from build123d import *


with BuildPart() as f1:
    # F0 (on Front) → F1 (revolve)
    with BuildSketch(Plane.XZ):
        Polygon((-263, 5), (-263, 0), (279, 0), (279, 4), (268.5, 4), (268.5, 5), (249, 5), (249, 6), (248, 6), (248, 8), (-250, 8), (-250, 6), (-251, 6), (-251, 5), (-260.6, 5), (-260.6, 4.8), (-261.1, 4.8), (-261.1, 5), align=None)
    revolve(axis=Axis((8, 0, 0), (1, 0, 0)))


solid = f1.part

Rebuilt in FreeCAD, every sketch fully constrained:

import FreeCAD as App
import Part
import Sketcher
from FreeCAD import Vector


def add_polygon(sketch, points):
    """Adds a closed chain of lines whose ends are joined by coincident constraints."""
    first, n = sketch.GeometryCount, len(points)
    for a, b in zip(points, points[1:] + points[:1]):
        sketch.addGeometry(Part.LineSegment(App.Vector(*a, 0), App.Vector(*b, 0)), False)
    for i in range(n):
        sketch.addConstraint(Sketcher.Constraint("Coincident", first + i, 2, first + (i + 1) % n, 1))

doc = App.newDocument("Part")
params = doc.addObject("Spreadsheet::Sheet", "Params")
for row, (alias, value) in enumerate([
    ("sketch1_width", "542 mm"),
    ("sketch1_width2", "1 mm"),
    ("sketch1_width3", "498 mm"),
    ("sketch1_height", "5 mm"),
    ("sketch1_height2", "2 mm"),
    ("revolution_angle", "360 deg"),
], start=1):
    params.set(f"A{row}", alias)
    params.set(f"B{row}", "=" + value)
    params.setAlias(f"B{row}", alias)

body = doc.addObject("PartDesign::Body", "Body")

# Sketch on XZ plane
sketch1 = body.newObject("Sketcher::SketchObject", "Sketch")
sketch1.AttachmentSupport = (doc.getObject("XZ_Plane"), [""])
sketch1.MapMode = "FlatFace"
add_polygon(sketch1, [(-263, 5), (-263, 0), (279, 0), (279, 4), (268.5, 4), (268.5, 5), (249, 5), (249, 6), (248, 6), (248, 8), (-250, 8), (-250, 6), (-251, 6), (-251, 5), (-260.6, 5), (-260.6, 4.8), (-261.1, 4.8), (-261.1, 5)])  # lines 0-17
sketch1.addConstraint([
    Sketcher.Constraint("Vertical", 0),
    Sketcher.Constraint("Horizontal", 1),
    Sketcher.Constraint("Vertical", 2),
    Sketcher.Constraint("Horizontal", 3),
    Sketcher.Constraint("Vertical", 4),
    Sketcher.Constraint("Horizontal", 5),
    Sketcher.Constraint("Vertical", 6),
    Sketcher.Constraint("Horizontal", 7),
    Sketcher.Constraint("Vertical", 8),
    Sketcher.Constraint("Horizontal", 9),
    Sketcher.Constraint("Vertical", 10),
    Sketcher.Constraint("Horizontal", 11),
    Sketcher.Constraint("Vertical", 12),
    Sketcher.Constraint("Horizontal", 13),
    Sketcher.Constraint("Vertical", 14),
    Sketcher.Constraint("Horizontal", 15),
    Sketcher.Constraint("Vertical", 16),
    Sketcher.Constraint("Horizontal", 17),
    Sketcher.Constraint("PointOnObject", 0, 2, -1),
    Sketcher.Constraint("Horizontal", 7, 2, 10, 2),
    Sketcher.Constraint("Horizontal", 5, 2, 12, 2),
    Sketcher.Constraint("Horizontal", 13, 2, 16, 2),
    Sketcher.Constraint("Equal", 7, 11),
    Sketcher.Constraint("Equal", 11, 4),
    Sketcher.Constraint("Equal", 4, 6),
    Sketcher.Constraint("DistanceX", 1, 1, 1, 2, 542.0),
    Sketcher.Constraint("DistanceX", 7, 2, 7, 1, 1.0),
    Sketcher.Constraint("DistanceX", 9, 2, 9, 1, 498.0),
    Sketcher.Constraint("DistanceY", 0, 2, 0, 1, 5.0),
    Sketcher.Constraint("DistanceY", 8, 1, 8, 2, 2.0),
    Sketcher.Constraint("DistanceX", 3, 2, 3, 1, 10.5),
    Sketcher.Constraint("DistanceX", 5, 2, 5, 1, 19.5),
    Sketcher.Constraint("DistanceX", 13, 2, 13, 1, 9.6),
    Sketcher.Constraint("DistanceX", 15, 2, 15, 1, 0.5),
    Sketcher.Constraint("DistanceY", 14, 2, 14, 1, 0.2),
    Sketcher.Constraint("DistanceX", 0, 2, -1, 1, 263.0),
])
sketch1.setExpression("Constraints[43]", "Params.sketch1_width")
sketch1.setExpression("Constraints[44]", "Params.sketch1_width2")
sketch1.setExpression("Constraints[45]", "Params.sketch1_width3")
sketch1.setExpression("Constraints[46]", "Params.sketch1_height")
sketch1.setExpression("Constraints[47]", "Params.sketch1_height2")
revolution = body.newObject("PartDesign::Revolution", "Revolution")
revolution.Profile = sketch1
revolution.ReferenceAxis = (sketch1, ["H_Axis"])
revolution.setExpression("Angle", "Params.revolution_angle")

doc.recompute()
